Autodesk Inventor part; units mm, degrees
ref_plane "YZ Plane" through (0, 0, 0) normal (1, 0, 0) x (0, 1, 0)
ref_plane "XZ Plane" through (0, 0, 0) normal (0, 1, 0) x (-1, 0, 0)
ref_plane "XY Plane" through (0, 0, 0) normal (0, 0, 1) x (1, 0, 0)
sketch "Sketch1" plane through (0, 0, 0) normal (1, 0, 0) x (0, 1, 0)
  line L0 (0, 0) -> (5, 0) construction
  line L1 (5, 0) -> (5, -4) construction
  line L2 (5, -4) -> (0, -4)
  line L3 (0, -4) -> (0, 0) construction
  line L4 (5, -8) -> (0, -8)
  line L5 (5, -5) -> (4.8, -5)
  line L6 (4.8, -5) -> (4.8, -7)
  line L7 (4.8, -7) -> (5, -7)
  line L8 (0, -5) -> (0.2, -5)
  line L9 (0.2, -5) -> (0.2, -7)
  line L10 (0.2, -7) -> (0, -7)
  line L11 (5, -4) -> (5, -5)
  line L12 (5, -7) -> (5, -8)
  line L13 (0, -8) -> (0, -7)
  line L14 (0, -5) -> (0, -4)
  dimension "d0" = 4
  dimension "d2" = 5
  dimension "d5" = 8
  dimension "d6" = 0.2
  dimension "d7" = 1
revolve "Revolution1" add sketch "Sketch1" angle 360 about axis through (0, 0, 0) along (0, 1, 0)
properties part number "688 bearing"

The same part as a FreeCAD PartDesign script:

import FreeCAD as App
import Part
import Sketcher

V = App.Vector

doc = App.newDocument("Part")
body = doc.addObject("PartDesign::Body", "Body")

sketch1 = body.newObject("Sketcher::SketchObject", "Sketch")
sketch1.AttachmentSupport = (doc.getObject("YZ_Plane"), [""])
sketch1.MapMode = "FlatFace"
sketch1.addGeometry(Part.LineSegment(V(5, -5, 0), V(5, -4, 0)), False)
sketch1.addGeometry(Part.LineSegment(V(5, -4, 0), V(0, -4, 0)), False)
sketch1.addGeometry(Part.LineSegment(V(0, -4, 0), V(0, -5, 0)), False)
sketch1.addGeometry(Part.LineSegment(V(0, -5, 0), V(0.2, -5, 0)), False)
sketch1.addGeometry(Part.LineSegment(V(0.2, -5, 0), V(0.2, -7, 0)), False)
sketch1.addGeometry(Part.LineSegment(V(0.2, -7, 0), V(0, -7, 0)), False)
sketch1.addGeometry(Part.LineSegment(V(0, -7, 0), V(0, -8, 0)), False)
sketch1.addGeometry(Part.LineSegment(V(0, -8, 0), V(5, -8, 0)), False)
sketch1.addGeometry(Part.LineSegment(V(5, -8, 0), V(5, -7, 0)), False)
sketch1.addGeometry(Part.LineSegment(V(5, -7, 0), V(4.8, -7, 0)), False)
sketch1.addGeometry(Part.LineSegment(V(4.8, -7, 0), V(4.8, -5, 0)), False)
sketch1.addGeometry(Part.LineSegment(V(4.8, -5, 0), V(5, -5, 0)), False)
sketch1.addConstraint(Sketcher.Constraint("Coincident", 0, 2, 1, 1))
sketch1.addConstraint(Sketcher.Constraint("Coincident", 1, 2, 2, 1))
sketch1.addConstraint(Sketcher.Constraint("Coincident", 2, 2, 3, 1))
sketch1.addConstraint(Sketcher.Constraint("Coincident", 3, 2, 4, 1))
sketch1.addConstraint(Sketcher.Constraint("Coincident", 4, 2, 5, 1))
sketch1.addConstraint(Sketcher.Constraint("Coincident", 5, 2, 6, 1))
sketch1.addConstraint(Sketcher.Constraint("Coincident", 6, 2, 7, 1))
sketch1.addConstraint(Sketcher.Constraint("Coincident", 7, 2, 8, 1))
sketch1.addConstraint(Sketcher.Constraint("Coincident", 8, 2, 9, 1))
sketch1.addConstraint(Sketcher.Constraint("Coincident", 9, 2, 10, 1))
sketch1.addConstraint(Sketcher.Constraint("Coincident", 10, 2, 11, 1))
sketch1.addConstraint(Sketcher.Constraint("Coincident", 11, 2, 0, 1))
sketch1.addConstraint(Sketcher.Constraint("Vertical", 0))
sketch1.addConstraint(Sketcher.Constraint("Horizontal", 1))
sketch1.addConstraint(Sketcher.Constraint("Vertical", 2))
sketch1.addConstraint(Sketcher.Constraint("Horizontal", 3))
sketch1.addConstraint(Sketcher.Constraint("Vertical", 4))
sketch1.addConstraint(Sketcher.Constraint("Horizontal", 5))
sketch1.addConstraint(Sketcher.Constraint("Vertical", 6))
sketch1.addConstraint(Sketcher.Constraint("Horizontal", 7))
sketch1.addConstraint(Sketcher.Constraint("Vertical", 8))
sketch1.addConstraint(Sketcher.Constraint("Horizontal", 9))
sketch1.addConstraint(Sketcher.Constraint("Vertical", 10))
sketch1.addConstraint(Sketcher.Constraint("Horizontal", 11))
sketch1.addConstraint(Sketcher.Constraint("PointOnObject", 1, 2, -2))
sketch1.addConstraint(Sketcher.Constraint("PointOnObject", 5, 2, -2))
sketch1.addConstraint(Sketcher.Constraint("Horizontal", 5, 2, 8, 2))
sketch1.addConstraint(Sketcher.Constraint("Horizontal", 3, 2, 10, 2))
sketch1.addConstraint(Sketcher.Constraint("Vertical", 0, 2, 7, 2))
sketch1.addConstraint(Sketcher.Constraint("Equal", 5, 9))
sketch1.addConstraint(Sketcher.Constraint("Equal", 2, 6))
sketch1.addConstraint(Sketcher.Constraint("DistanceX", 1, 2, 1, 1, 5.0))
sketch1.addConstraint(Sketcher.Constraint("DistanceY", 0, 1, 0, 2, 1.0))
sketch1.addConstraint(Sketcher.Constraint("DistanceX", 3, 1, 3, 2, 0.2))
sketch1.addConstraint(Sketcher.Constraint("DistanceY", 0, 2, -1, 1, 4.0))
sketch1.addConstraint(Sketcher.Constraint("DistanceY", 6, 2, -1, 1, 8.0))
revolution = body.newObject("PartDesign::Revolution", "Revolution")
revolution.Profile = sketch1
revolution.ReferenceAxis = (sketch1, ["H_Axis"])
revolution.Angle = 360

doc.recompute()
